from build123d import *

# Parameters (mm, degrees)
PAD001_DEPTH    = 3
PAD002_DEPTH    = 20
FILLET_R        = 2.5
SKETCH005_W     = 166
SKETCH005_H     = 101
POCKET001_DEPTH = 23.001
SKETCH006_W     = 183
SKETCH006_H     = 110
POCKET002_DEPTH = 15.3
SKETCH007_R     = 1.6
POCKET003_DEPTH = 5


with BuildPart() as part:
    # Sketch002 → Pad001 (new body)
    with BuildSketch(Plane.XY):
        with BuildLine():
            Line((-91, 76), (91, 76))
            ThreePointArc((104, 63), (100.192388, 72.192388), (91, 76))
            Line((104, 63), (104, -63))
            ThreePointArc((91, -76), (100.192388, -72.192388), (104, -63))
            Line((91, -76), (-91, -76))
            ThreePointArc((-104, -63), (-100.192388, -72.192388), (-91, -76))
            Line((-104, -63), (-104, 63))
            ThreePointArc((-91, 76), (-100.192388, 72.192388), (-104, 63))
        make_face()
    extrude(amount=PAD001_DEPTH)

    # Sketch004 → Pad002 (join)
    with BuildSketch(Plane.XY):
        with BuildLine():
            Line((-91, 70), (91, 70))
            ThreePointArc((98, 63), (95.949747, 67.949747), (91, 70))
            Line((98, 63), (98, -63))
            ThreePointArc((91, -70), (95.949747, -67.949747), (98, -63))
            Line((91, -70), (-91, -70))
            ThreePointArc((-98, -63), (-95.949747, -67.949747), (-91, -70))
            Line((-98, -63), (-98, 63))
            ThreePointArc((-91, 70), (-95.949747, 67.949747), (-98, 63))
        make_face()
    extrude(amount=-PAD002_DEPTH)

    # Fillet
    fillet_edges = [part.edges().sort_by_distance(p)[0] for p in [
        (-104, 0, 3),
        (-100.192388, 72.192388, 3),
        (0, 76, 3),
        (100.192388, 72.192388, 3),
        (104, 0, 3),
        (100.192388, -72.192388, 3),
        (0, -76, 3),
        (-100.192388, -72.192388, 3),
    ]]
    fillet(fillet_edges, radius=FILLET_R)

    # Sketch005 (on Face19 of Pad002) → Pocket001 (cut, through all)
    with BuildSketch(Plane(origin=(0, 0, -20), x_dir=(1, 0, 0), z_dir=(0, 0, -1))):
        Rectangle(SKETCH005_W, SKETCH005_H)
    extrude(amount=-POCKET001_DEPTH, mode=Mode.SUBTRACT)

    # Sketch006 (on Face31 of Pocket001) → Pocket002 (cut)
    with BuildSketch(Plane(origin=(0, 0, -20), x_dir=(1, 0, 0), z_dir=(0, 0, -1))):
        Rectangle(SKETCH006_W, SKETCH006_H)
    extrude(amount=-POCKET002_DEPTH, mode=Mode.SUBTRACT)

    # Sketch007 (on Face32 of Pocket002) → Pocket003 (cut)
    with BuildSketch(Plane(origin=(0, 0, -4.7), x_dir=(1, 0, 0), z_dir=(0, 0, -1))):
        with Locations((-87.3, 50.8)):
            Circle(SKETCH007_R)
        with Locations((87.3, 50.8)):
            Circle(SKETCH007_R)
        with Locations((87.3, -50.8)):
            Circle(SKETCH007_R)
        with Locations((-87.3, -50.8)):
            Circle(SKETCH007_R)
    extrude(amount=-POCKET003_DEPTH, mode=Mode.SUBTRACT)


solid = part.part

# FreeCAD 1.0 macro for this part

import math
import FreeCAD as App
import Part
import Sketcher


def edges_at(feature, points):
    """Names of the edges that pass closest to the given points."""
    edges = feature.Shape.Edges
    near = lambda p: min(range(len(edges)), key=lambda i: edges[i].distToShape(Part.Vertex(*p))[0])
    return sorted({f"Edge{near(p) + 1}" for p in points})

doc = App.newDocument("Part")
params = doc.addObject("Spreadsheet::Sheet", "Params")
for row, (alias, value) in enumerate([
    ("sketch1_radius", "13.000001 mm"),
    ("sketch1_width", "182 mm"),
    ("sketch1_height", "126 mm"),
    ("pad1_length", "3 mm"),
    ("sketch2_radius", "7.000002 mm"),
    ("sketch2_width", "182 mm"),
    ("sketch2_height", "126 mm"),
    ("pad2_length", "20 mm"),
    ("fillet_radius", "2.5 mm"),
    ("sketch3_width", "166 mm"),
    ("sketch3_height", "101 mm"),
    ("sketch4_width", "183 mm"),
    ("sketch4_height", "110 mm"),
    ("pocket2_length", "15.3 mm"),
    ("sketch5_diameter", "3.2 mm"),
    ("pocket3_length", "5 mm"),
], start=1):
    params.set(f"A{row}", alias)
    params.set(f"B{row}", "=" + value)
    params.setAlias(f"B{row}", alias)

body = doc.addObject("PartDesign::Body", "Body")

sketch1 = body.newObject("Sketcher::SketchObject", "Sketch")
sketch1.AttachmentSupport = (doc.getObject("XY_Plane"), [""])
sketch1.MapMode = "FlatFace"
sketch1.addGeometry([
    Part.LineSegment(App.Vector(91, 76, 0), App.Vector(-91, 76, 0)),
    Part.ArcOfCircle(Part.Circle(App.Vector(-91, 63, 0), App.Vector(0, 0, 1), 13), math.radians(90), math.radians(180)),
    Part.LineSegment(App.Vector(-104, 63, 0), App.Vector(-104, -63, 0)),
    Part.ArcOfCircle(Part.Circle(App.Vector(-91, -63, 0), App.Vector(0, 0, 1), 13), math.radians(-180), math.radians(-90)),
    Part.LineSegment(App.Vector(-91, -76, 0), App.Vector(91, -76, 0)),
    Part.ArcOfCircle(Part.Circle(App.Vector(91, -63, 0), App.Vector(0, 0, 1), 13), math.radians(-90), math.radians(0)),
    Part.LineSegment(App.Vector(104, -63, 0), App.Vector(104, 63, 0)),
    Part.ArcOfCircle(Part.Circle(App.Vector(91, 63, 0), App.Vector(0, 0, 1), 13), math.radians(0), math.radians(90)),
], False)
sketch1.addConstraint([
    Sketcher.Constraint("Tangent", 0, 2, 1, 1),
    Sketcher.Constraint("Tangent", 1, 2, 2, 1),
    Sketcher.Constraint("Tangent", 2, 2, 3, 1),
    Sketcher.Constraint("Tangent", 3, 2, 4, 1),
    Sketcher.Constraint("Tangent", 4, 2, 5, 1),
    Sketcher.Constraint("Tangent", 5, 2, 6, 1),
    Sketcher.Constraint("Tangent", 6, 2, 7, 1),
    Sketcher.Constraint("Tangent", 7, 2, 0, 1),
    Sketcher.Constraint("Horizontal", 0),
    Sketcher.Constraint("Vertical", 2),
    Sketcher.Constraint("Horizontal", 4),
    Sketcher.Constraint("Vertical", 6),
    Sketcher.Constraint("Equal", 1, 3),
    Sketcher.Constraint("Equal", 3, 5),
    Sketcher.Constraint("Equal", 5, 7),
    Sketcher.Constraint("Symmetric", 1, 3, 5, 3, -1, 1),
    Sketcher.Constraint("Radius", 1, 13.000001),
    Sketcher.Constraint("DistanceX", 0, 2, 0, 1, 182.0),
    Sketcher.Constraint("DistanceY", 2, 2, 2, 1, 126.0),
])
sketch1.setExpression("Constraints[16]", "Params.sketch1_radius")
sketch1.setExpression("Constraints[17]", "Params.sketch1_width")
sketch1.setExpression("Constraints[18]", "Params.sketch1_height")
pad1 = body.newObject("PartDesign::Pad", "Pad")
pad1.Profile = sketch1
pad1.setExpression("Length", "Params.pad1_length")

sketch2 = body.newObject("Sketcher::SketchObject", "Sketch001")
sketch2.AttachmentSupport = (doc.getObject("XY_Plane"), [""])
sketch2.MapMode = "FlatFace"
sketch2.addGeometry([
    Part.LineSegment(App.Vector(91, 70, 0), App.Vector(-91, 70, 0)),
    Part.ArcOfCircle(Part.Circle(App.Vector(-91, 63, 0), App.Vector(0, 0, 1), 7), math.radians(90), math.radians(180)),
    Part.LineSegment(App.Vector(-98, 63, 0), App.Vector(-98, -63, 0)),
    Part.ArcOfCircle(Part.Circle(App.Vector(-91, -63, 0), App.Vector(0, 0, 1), 7), math.radians(-180), math.radians(-90)),
    Part.LineSegment(App.Vector(-91, -70, 0), App.Vector(91, -70, 0)),
    Part.ArcOfCircle(Part.Circle(App.Vector(91, -63, 0), App.Vector(0, 0, 1), 7), math.radians(-90), math.radians(0)),
    Part.LineSegment(App.Vector(98, -63, 0), App.Vector(98, 63, 0)),
    Part.ArcOfCircle(Part.Circle(App.Vector(91, 63, 0), App.Vector(0, 0, 1), 7), math.radians(0), math.radians(90)),
], False)
sketch2.addConstraint([
    Sketcher.Constraint("Tangent", 0, 2, 1, 1),
    Sketcher.Constraint("Tangent", 1, 2, 2, 1),
    Sketcher.Constraint("Tangent", 2, 2, 3, 1),
    Sketcher.Constraint("Tangent", 3, 2, 4, 1),
    Sketcher.Constraint("Tangent", 4, 2, 5, 1),
    Sketcher.Constraint("Tangent", 5, 2, 6, 1),
    Sketcher.Constraint("Tangent", 6, 2, 7, 1),
    Sketcher.Constraint("Tangent", 7, 2, 0, 1),
    Sketcher.Constraint("Horizontal", 0),
    Sketcher.Constraint("Vertical", 2),
    Sketcher.Constraint("Horizontal", 4),
    Sketcher.Constraint("Vertical", 6),
    Sketcher.Constraint("Equal", 1, 3),
    Sketcher.Constraint("Equal", 3, 5),
    Sketcher.Constraint("Equal", 5, 7),
    Sketcher.Constraint("Symmetric", 1, 3, 5, 3, -1, 1),
    Sketcher.Constraint("Radius", 1, 7.000002),
    Sketcher.Constraint("DistanceX", 0, 2, 0, 1, 182.0),
    Sketcher.Constraint("DistanceY", 2, 2, 2, 1, 126.0),
])
sketch2.setExpression("Constraints[16]", "Params.sketch2_radius")
sketch2.setExpression("Constraints[17]", "Params.sketch2_width")
sketch2.setExpression("Constraints[18]", "Params.sketch2_height")
pad2 = body.newObject("PartDesign::Pad", "Pad001")
pad2.Profile = sketch2
pad2.setExpression("Length", "Params.pad2_length")
pad2.Reversed = True
doc.recompute()

fillet = body.newObject("PartDesign::Fillet", "Fillet")
fillet.Base = (pad2, edges_at(pad2, [
    (-104, 0, 3),
    (-100.192, 72.192, 3),
    (0, 76, 3),
    (100.192, 72.192, 3),
    (104, 0, 3),
    (100.192, -72.192, 3),
    (0, -76, 3),
    (-100.192, -72.192, 3),
]))
fillet.setExpression("Radius", "Params.fillet_radius")

sketch3 = body.newObject("Sketcher::SketchObject", "Sketch002")
sketch3.AttachmentSupport = (doc.getObject("XY_Plane"), [""])
sketch3.MapMode = "FlatFace"
sketch3.AttachmentOffset = App.Placement(App.Vector(0, 0, -20), App.Rotation())
sketch3.addGeometry([
    Part.LineSegment(App.Vector(-83, -50, 0), App.Vector(-83, 50, 0)),
    Part.LineSegment(App.Vector(-83, 50, 0), App.Vector(83, 50, 0)),
    Part.LineSegment(App.Vector(83, 50, 0), App.Vector(83, -50, 0)),
    Part.LineSegment(App.Vector(83, -50, 0), App.Vector(-83, -50, 0)),
], False)
sketch3.addConstraint([
    Sketcher.Constraint("Coincident", 0, 2, 1, 1),
    Sketcher.Constraint("Coincident", 1, 2, 2, 1),
    Sketcher.Constraint("Coincident", 2, 2, 3, 1),
    Sketcher.Constraint("Coincident", 3, 2, 0, 1),
    Sketcher.Constraint("Vertical", 0),
    Sketcher.Constraint("Horizontal", 1),
    Sketcher.Constraint("Vertical", 2),
    Sketcher.Constraint("Horizontal", 3),
    Sketcher.Constraint("Symmetric", 0, 2, 2, 2, -1, 1),
    Sketcher.Constraint("DistanceX", 1, 1, 1, 2, 166.0),
    Sketcher.Constraint("DistanceY", 0, 1, 0, 2, 101.0),
])
sketch3.setExpression("Constraints[9]", "Params.sketch3_width")
sketch3.setExpression("Constraints[10]", "Params.sketch3_height")
pocket1 = body.newObject("PartDesign::Pocket", "Pocket")
pocket1.Profile = sketch3
pocket1.Type = "ThroughAll"
pocket1.Reversed = True

sketch4 = body.newObject("Sketcher::SketchObject", "Sketch003")
sketch4.AttachmentSupport = (doc.getObject("XY_Plane"), [""])
sketch4.MapMode = "FlatFace"
sketch4.AttachmentOffset = App.Placement(App.Vector(0, 0, -20), App.Rotation())
sketch4.addGeometry([
    Part.LineSegment(App.Vector(-92, -55, 0), App.Vector(-92, 55, 0)),
    Part.LineSegment(App.Vector(-92, 55, 0), App.Vector(92, 55, 0)),
    Part.LineSegment(App.Vector(92, 55, 0), App.Vector(92, -55, 0)),
    Part.LineSegment(App.Vector(92, -55, 0), App.Vector(-92, -55, 0)),
], False)
sketch4.addConstraint([
    Sketcher.Constraint("Coincident", 0, 2, 1, 1),
    Sketcher.Constraint("Coincident", 1, 2, 2, 1),
    Sketcher.Constraint("Coincident", 2, 2, 3, 1),
    Sketcher.Constraint("Coincident", 3, 2, 0, 1),
    Sketcher.Constraint("Vertical", 0),
    Sketcher.Constraint("Horizontal", 1),
    Sketcher.Constraint("Vertical", 2),
    Sketcher.Constraint("Horizontal", 3),
    Sketcher.Constraint("Symmetric", 0, 2, 2, 2, -1, 1),
    Sketcher.Constraint("DistanceX", 1, 1, 1, 2, 183.0),
    Sketcher.Constraint("DistanceY", 0, 1, 0, 2, 110.0),
])
sketch4.setExpression("Constraints[9]", "Params.sketch4_width")
sketch4.setExpression("Constraints[10]", "Params.sketch4_height")
pocket2 = body.newObject("PartDesign::Pocket", "Pocket001")
pocket2.Profile = sketch4
pocket2.setExpression("Length", "Params.pocket2_length")
pocket2.Reversed = True

sketch5 = body.newObject("Sketcher::SketchObject", "Sketch004")
sketch5.AttachmentSupport = (doc.getObject("XY_Plane"), [""])
sketch5.MapMode = "FlatFace"
sketch5.AttachmentOffset = App.Placement(App.Vector(0, 0, -4.7), App.Rotation())
sketch5.addGeometry([
    Part.Circle(App.Vector(-87.3, -50.8, 0), App.Vector(0, 0, 1), 1.6),
    Part.Circle(App.Vector(87.3, -50.8, 0), App.Vector(0, 0, 1), 1.6),
    Part.Circle(App.Vector(87.3, 50.8, 0), App.Vector(0, 0, 1), 1.6),
    Part.Circle(App.Vector(-87.3, 50.8, 0), App.Vector(0, 0, 1), 1.6),
], False)
sketch5.addConstraint([
    Sketcher.Constraint("Equal", 0, 1),
    Sketcher.Constraint("Equal", 1, 2),
    Sketcher.Constraint("Equal", 2, 3),
    Sketcher.Constraint("Symmetric", 0, 3, 2, 3, -1, 1),
    Sketcher.Constraint("Symmetric", 1, 3, 3, 3, -1, 1),
    Sketcher.Constraint("Symmetric", 0, 3, 1, 3, -2),
    Sketcher.Constraint("Diameter", 0, 3.2),
    Sketcher.Constraint("DistanceX", 0, 3, -1, 1, 87.3),
    Sketcher.Constraint("DistanceY", 0, 3, -1, 1, 50.8),
])
sketch5.setExpression("Constraints[6]", "Params.sketch5_diameter")
pocket3 = body.newObject("PartDesign::Pocket", "Pocket002")
pocket3.Profile = sketch5
pocket3.setExpression("Length", "Params.pocket3_length")
pocket3.Reversed = True

doc.recompute()
